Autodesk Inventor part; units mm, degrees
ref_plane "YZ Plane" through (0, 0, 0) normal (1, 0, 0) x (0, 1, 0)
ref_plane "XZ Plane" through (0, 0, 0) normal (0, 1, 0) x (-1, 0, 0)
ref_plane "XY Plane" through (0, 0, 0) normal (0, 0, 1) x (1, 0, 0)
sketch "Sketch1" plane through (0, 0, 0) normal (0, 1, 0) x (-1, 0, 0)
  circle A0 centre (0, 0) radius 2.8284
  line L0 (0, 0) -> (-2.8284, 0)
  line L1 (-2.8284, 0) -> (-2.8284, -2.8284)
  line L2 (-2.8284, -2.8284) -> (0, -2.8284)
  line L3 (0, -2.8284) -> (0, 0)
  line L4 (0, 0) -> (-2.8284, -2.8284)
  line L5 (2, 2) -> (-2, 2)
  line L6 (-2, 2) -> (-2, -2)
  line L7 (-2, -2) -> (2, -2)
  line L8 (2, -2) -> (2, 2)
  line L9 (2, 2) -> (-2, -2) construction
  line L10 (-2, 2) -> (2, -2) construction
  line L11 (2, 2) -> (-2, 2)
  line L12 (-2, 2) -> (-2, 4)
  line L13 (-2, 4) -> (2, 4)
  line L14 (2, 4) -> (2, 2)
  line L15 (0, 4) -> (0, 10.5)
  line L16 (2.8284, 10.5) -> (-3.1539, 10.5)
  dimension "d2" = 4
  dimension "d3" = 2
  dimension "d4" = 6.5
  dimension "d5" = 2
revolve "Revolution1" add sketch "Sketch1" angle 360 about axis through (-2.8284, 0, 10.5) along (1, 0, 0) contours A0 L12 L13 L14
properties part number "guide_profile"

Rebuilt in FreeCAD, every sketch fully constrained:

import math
import FreeCAD as App
import Part
import Sketcher
from FreeCAD import Vector

doc = App.newDocument("Part")
body = doc.addObject("PartDesign::Body", "Body")

# Sketch on XZ plane
sketch1 = body.newObject("Sketcher::SketchObject", "Sketch")
sketch1.AttachmentSupport = (doc.getObject("XZ_Plane"), [""])
sketch1.MapMode = "FlatFace"
sketch1.addGeometry([
    Part.ArcOfCircle(Part.Circle(Vector(0, 0, 0), Vector(0, 0, 1), 2.8284), math.radians(45), math.radians(135)),
    Part.LineSegment(Vector(-2, 2, 0), Vector(-2, 4, 0)),
    Part.LineSegment(Vector(-2, 4, 0), Vector(2, 4, 0)),
    Part.LineSegment(Vector(2, 4, 0), Vector(2, 2, 0)),
], False)
sketch1.addGeometry(Part.LineSegment(Vector(-2, 10.5, 0), Vector(2, 10.5, 0)), True)  # axis
sketch1.addConstraint([
    Sketcher.Constraint("Coincident", 0, 2, 1, 1),
    Sketcher.Constraint("Coincident", 1, 2, 2, 1),
    Sketcher.Constraint("Coincident", 2, 2, 3, 1),
    Sketcher.Constraint("Coincident", 3, 2, 0, 1),
    Sketcher.Constraint("Vertical", 1),
    Sketcher.Constraint("Horizontal", 2),
    Sketcher.Constraint("Vertical", 3),
    Sketcher.Constraint("Horizontal", 4),
    Sketcher.Constraint("Coincident", 0, 3, -1, 1),
    Sketcher.Constraint("Horizontal", 0, 2, 3, 2),
    Sketcher.Constraint("Vertical", 1, 2, 4, 1),
    Sketcher.Constraint("Vertical", 3, 2, 4, 2),
    Sketcher.Constraint("DistanceX", 2, 1, 2, 2, 4.0),
    Sketcher.Constraint("DistanceY", 1, 1, 1, 2, 2.0),
    Sketcher.Constraint("DistanceY", -1, 1, 0, 2, 2.0),
    Sketcher.Constraint("DistanceY", 1, 2, 4, 1, 6.5),
])
revolution = body.newObject("PartDesign::Revolution", "Revolution")
revolution.Profile = sketch1
revolution.ReferenceAxis = (sketch1, ["Axis0"])
revolution.Angle = 360

doc.recompute()
